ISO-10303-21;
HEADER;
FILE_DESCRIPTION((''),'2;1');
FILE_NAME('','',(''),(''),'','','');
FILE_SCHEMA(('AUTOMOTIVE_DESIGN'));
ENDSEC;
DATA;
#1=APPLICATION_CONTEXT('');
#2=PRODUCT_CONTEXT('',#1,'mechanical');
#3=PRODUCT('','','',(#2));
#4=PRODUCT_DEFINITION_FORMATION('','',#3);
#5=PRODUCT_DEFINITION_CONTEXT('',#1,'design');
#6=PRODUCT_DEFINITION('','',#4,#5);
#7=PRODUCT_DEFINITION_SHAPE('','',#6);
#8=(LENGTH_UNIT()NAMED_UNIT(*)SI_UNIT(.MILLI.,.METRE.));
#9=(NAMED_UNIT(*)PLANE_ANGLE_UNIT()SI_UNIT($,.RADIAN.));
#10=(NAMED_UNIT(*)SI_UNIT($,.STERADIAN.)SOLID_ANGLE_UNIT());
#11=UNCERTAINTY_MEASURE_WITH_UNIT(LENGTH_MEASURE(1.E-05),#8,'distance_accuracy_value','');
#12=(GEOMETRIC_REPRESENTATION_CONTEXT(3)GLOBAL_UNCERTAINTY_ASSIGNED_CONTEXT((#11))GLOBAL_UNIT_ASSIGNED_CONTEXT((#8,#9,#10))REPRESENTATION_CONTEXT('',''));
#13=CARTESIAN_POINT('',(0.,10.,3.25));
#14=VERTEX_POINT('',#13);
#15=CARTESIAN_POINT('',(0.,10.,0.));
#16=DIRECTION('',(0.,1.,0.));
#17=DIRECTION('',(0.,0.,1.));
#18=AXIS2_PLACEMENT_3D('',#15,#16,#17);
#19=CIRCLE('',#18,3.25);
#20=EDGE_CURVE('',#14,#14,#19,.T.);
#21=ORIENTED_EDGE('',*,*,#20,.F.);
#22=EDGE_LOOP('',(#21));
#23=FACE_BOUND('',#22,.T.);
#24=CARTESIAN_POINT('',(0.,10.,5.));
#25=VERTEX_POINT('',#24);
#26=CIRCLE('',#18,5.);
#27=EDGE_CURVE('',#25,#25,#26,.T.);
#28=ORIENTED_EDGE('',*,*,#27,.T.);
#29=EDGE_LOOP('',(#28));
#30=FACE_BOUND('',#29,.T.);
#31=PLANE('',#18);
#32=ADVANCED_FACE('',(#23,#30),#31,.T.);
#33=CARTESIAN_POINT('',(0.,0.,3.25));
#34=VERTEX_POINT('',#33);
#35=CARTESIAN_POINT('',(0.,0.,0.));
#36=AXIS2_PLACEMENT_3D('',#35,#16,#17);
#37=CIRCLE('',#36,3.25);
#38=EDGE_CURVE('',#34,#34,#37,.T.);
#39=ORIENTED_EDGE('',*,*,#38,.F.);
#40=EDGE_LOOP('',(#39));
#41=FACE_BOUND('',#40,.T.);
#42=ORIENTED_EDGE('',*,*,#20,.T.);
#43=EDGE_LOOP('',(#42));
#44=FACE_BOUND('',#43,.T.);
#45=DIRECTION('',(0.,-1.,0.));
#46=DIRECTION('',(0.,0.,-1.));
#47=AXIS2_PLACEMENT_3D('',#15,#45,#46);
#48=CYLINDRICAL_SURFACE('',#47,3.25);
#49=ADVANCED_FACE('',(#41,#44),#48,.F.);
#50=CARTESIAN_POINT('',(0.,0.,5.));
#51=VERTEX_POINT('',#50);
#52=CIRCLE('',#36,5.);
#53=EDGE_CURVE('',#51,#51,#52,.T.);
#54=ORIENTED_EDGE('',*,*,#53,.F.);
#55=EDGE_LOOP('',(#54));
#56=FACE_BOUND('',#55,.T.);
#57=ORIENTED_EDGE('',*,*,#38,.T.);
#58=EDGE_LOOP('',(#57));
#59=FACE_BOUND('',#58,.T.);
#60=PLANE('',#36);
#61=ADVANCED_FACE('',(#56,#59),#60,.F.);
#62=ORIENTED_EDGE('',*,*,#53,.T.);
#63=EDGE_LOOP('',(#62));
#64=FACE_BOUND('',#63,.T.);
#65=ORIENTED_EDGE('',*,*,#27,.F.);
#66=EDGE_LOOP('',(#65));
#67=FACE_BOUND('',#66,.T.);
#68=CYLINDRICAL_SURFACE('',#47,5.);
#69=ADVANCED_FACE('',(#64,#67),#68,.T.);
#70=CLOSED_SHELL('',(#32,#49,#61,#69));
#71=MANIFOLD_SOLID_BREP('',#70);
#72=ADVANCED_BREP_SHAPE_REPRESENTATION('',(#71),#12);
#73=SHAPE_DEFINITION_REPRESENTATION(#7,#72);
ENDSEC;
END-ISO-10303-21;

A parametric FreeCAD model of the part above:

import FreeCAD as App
import Part
import Sketcher
Q = App.Units.Quantity

doc = App.newDocument("Part")
body = doc.addObject("PartDesign::Body", "Body")

sketch1 = doc.addObject("Sketcher::SketchObject", "Sketch")
body.addObject(sketch1)
sketch1.AttachmentSupport = (doc.XZ_Plane, [""])
sketch1.MapMode = "FlatFace"
sketch1.addGeometry(Part.Circle(App.Vector(0, 0, 0), App.Vector(0, 0, 1), 5), False)
sketch1.addGeometry(Part.Circle(App.Vector(0, 0, 0), App.Vector(0, 0, 1), 3.2), False)
sketch1.addConstraint(Sketcher.Constraint("Coincident", 0, 3, -1, 1))
sketch1.addConstraint(Sketcher.Constraint("Coincident", 1, 3, -1, 1))
sketch1.addConstraint(Sketcher.Constraint("Diameter", 0, Q("10 mm")))
sketch1.addConstraint(Sketcher.Constraint("Diameter", 1, Q("6.5 mm")))
pad1 = doc.addObject("PartDesign::Pad", "Pad")
body.addObject(pad1)
pad1.Profile = sketch1
pad1.Length = 10
pad1.Reversed = True

doc.recompute()
